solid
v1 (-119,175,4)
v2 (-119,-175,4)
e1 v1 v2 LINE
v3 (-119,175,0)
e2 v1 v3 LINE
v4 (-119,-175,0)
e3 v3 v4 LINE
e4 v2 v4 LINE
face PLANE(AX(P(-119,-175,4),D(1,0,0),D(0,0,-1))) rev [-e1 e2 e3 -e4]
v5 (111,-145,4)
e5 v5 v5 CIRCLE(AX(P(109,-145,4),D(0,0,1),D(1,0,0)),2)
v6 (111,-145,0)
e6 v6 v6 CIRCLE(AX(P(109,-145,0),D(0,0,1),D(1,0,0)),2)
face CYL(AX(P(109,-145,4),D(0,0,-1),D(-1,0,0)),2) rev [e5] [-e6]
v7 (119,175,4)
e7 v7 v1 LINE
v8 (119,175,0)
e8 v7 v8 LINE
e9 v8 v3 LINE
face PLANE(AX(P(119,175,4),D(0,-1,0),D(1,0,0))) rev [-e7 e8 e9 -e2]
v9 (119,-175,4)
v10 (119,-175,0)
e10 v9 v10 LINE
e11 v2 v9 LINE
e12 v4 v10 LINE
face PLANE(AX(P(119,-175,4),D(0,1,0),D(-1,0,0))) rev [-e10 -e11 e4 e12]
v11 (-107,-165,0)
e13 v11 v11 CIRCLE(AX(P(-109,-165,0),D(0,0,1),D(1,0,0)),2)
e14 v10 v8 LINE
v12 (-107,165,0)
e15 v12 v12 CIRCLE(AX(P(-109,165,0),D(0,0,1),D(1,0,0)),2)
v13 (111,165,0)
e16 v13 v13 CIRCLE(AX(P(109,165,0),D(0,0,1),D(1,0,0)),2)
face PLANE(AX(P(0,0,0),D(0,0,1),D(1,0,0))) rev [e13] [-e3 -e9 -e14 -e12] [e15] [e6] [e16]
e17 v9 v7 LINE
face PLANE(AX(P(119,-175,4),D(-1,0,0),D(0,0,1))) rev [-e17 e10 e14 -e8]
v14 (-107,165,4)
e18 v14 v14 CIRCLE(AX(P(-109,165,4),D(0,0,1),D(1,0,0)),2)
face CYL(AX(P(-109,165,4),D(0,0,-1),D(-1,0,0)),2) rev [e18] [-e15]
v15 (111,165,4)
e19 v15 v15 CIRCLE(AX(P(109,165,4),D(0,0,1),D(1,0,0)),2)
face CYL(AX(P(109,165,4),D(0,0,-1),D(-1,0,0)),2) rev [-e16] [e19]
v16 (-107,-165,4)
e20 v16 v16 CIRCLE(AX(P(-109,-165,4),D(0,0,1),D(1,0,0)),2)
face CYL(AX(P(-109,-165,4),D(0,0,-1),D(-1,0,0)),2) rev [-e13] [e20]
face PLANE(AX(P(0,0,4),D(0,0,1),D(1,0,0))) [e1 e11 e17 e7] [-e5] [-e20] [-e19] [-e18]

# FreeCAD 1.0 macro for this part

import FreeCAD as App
import Part
import Sketcher

V = App.Vector


def add_polygon(sketch, points):
    """Adds a closed chain of lines whose ends are joined by coincident constraints."""
    first, n = sketch.GeometryCount, len(points)
    for a, b in zip(points, points[1:] + points[:1]):
        sketch.addGeometry(Part.LineSegment(App.Vector(*a, 0), App.Vector(*b, 0)), False)
    for i in range(n):
        sketch.addConstraint(Sketcher.Constraint("Coincident", first + i, 2, first + (i + 1) % n, 1))

doc = App.newDocument("Part")
params = doc.addObject("Spreadsheet::Sheet", "Params")
for row, (alias, value) in enumerate([
    ("sketch1_diameter", "4 mm"),
    ("sketch1_width", "238 mm"),
    ("sketch1_height", "350 mm"),
    ("pad1_length", "4 mm"),
], start=1):
    params.set(f"A{row}", alias)
    params.set(f"B{row}", "=" + value)
    params.setAlias(f"B{row}", alias)

body = doc.addObject("PartDesign::Body", "Body")

sketch1 = body.newObject("Sketcher::SketchObject", "Sketch")
sketch1.AttachmentSupport = (doc.getObject("XY_Plane"), [""])
sketch1.MapMode = "FlatFace"
add_polygon(sketch1, [(-119, 175), (-119, -175), (119, -175), (119, 175)])
sketch1.addGeometry(Part.Circle(V(-109, -165, 0), V(0, 0, 1), 2), False)
sketch1.addGeometry(Part.Circle(V(109, -145, 0), V(0, 0, 1), 2), False)
sketch1.addGeometry(Part.Circle(V(-109, 165, 0), V(0, 0, 1), 2), False)
sketch1.addGeometry(Part.Circle(V(109, 165, 0), V(0, 0, 1), 2), False)
sketch1.addConstraint(Sketcher.Constraint("Vertical", 0))
sketch1.addConstraint(Sketcher.Constraint("Horizontal", 1))
sketch1.addConstraint(Sketcher.Constraint("Vertical", 2))
sketch1.addConstraint(Sketcher.Constraint("Horizontal", 3))
sketch1.addConstraint(Sketcher.Constraint("Equal", 4, 5))
sketch1.addConstraint(Sketcher.Constraint("Equal", 5, 6))
sketch1.addConstraint(Sketcher.Constraint("Equal", 6, 7))
sketch1.addConstraint(Sketcher.Constraint("Symmetric", 4, 3, 7, 3, -1, 1))
sketch1.addConstraint(Sketcher.Constraint("Symmetric", 0, 2, 2, 2, -1, 1))
sketch1.addConstraint(Sketcher.Constraint("Symmetric", 6, 3, 7, 3, -2))
sketch1.addConstraint(Sketcher.Constraint("Vertical", 5, 3, 7, 3))
sketch1.addConstraint(Sketcher.Constraint("Diameter", 4, 4.0))
sketch1.addConstraint(Sketcher.Constraint("DistanceX", 1, 1, 1, 2, 238.0))
sketch1.addConstraint(Sketcher.Constraint("DistanceY", 0, 2, 0, 1, 350.0))
sketch1.addConstraint(Sketcher.Constraint("DistanceX", 4, 3, -1, 1, 109.0))
sketch1.addConstraint(Sketcher.Constraint("DistanceY", 4, 3, -1, 1, 165.0))
sketch1.addConstraint(Sketcher.Constraint("DistanceY", 5, 3, -1, 1, 145.0))
sketch1.setExpression("Constraints[15]", "Params.sketch1_diameter")
sketch1.setExpression("Constraints[16]", "Params.sketch1_width")
sketch1.setExpression("Constraints[17]", "Params.sketch1_height")
pad1 = body.newObject("PartDesign::Pad", "Pad")
pad1.Profile = sketch1
pad1.setExpression("Length", "Params.pad1_length")

doc.recompute()
